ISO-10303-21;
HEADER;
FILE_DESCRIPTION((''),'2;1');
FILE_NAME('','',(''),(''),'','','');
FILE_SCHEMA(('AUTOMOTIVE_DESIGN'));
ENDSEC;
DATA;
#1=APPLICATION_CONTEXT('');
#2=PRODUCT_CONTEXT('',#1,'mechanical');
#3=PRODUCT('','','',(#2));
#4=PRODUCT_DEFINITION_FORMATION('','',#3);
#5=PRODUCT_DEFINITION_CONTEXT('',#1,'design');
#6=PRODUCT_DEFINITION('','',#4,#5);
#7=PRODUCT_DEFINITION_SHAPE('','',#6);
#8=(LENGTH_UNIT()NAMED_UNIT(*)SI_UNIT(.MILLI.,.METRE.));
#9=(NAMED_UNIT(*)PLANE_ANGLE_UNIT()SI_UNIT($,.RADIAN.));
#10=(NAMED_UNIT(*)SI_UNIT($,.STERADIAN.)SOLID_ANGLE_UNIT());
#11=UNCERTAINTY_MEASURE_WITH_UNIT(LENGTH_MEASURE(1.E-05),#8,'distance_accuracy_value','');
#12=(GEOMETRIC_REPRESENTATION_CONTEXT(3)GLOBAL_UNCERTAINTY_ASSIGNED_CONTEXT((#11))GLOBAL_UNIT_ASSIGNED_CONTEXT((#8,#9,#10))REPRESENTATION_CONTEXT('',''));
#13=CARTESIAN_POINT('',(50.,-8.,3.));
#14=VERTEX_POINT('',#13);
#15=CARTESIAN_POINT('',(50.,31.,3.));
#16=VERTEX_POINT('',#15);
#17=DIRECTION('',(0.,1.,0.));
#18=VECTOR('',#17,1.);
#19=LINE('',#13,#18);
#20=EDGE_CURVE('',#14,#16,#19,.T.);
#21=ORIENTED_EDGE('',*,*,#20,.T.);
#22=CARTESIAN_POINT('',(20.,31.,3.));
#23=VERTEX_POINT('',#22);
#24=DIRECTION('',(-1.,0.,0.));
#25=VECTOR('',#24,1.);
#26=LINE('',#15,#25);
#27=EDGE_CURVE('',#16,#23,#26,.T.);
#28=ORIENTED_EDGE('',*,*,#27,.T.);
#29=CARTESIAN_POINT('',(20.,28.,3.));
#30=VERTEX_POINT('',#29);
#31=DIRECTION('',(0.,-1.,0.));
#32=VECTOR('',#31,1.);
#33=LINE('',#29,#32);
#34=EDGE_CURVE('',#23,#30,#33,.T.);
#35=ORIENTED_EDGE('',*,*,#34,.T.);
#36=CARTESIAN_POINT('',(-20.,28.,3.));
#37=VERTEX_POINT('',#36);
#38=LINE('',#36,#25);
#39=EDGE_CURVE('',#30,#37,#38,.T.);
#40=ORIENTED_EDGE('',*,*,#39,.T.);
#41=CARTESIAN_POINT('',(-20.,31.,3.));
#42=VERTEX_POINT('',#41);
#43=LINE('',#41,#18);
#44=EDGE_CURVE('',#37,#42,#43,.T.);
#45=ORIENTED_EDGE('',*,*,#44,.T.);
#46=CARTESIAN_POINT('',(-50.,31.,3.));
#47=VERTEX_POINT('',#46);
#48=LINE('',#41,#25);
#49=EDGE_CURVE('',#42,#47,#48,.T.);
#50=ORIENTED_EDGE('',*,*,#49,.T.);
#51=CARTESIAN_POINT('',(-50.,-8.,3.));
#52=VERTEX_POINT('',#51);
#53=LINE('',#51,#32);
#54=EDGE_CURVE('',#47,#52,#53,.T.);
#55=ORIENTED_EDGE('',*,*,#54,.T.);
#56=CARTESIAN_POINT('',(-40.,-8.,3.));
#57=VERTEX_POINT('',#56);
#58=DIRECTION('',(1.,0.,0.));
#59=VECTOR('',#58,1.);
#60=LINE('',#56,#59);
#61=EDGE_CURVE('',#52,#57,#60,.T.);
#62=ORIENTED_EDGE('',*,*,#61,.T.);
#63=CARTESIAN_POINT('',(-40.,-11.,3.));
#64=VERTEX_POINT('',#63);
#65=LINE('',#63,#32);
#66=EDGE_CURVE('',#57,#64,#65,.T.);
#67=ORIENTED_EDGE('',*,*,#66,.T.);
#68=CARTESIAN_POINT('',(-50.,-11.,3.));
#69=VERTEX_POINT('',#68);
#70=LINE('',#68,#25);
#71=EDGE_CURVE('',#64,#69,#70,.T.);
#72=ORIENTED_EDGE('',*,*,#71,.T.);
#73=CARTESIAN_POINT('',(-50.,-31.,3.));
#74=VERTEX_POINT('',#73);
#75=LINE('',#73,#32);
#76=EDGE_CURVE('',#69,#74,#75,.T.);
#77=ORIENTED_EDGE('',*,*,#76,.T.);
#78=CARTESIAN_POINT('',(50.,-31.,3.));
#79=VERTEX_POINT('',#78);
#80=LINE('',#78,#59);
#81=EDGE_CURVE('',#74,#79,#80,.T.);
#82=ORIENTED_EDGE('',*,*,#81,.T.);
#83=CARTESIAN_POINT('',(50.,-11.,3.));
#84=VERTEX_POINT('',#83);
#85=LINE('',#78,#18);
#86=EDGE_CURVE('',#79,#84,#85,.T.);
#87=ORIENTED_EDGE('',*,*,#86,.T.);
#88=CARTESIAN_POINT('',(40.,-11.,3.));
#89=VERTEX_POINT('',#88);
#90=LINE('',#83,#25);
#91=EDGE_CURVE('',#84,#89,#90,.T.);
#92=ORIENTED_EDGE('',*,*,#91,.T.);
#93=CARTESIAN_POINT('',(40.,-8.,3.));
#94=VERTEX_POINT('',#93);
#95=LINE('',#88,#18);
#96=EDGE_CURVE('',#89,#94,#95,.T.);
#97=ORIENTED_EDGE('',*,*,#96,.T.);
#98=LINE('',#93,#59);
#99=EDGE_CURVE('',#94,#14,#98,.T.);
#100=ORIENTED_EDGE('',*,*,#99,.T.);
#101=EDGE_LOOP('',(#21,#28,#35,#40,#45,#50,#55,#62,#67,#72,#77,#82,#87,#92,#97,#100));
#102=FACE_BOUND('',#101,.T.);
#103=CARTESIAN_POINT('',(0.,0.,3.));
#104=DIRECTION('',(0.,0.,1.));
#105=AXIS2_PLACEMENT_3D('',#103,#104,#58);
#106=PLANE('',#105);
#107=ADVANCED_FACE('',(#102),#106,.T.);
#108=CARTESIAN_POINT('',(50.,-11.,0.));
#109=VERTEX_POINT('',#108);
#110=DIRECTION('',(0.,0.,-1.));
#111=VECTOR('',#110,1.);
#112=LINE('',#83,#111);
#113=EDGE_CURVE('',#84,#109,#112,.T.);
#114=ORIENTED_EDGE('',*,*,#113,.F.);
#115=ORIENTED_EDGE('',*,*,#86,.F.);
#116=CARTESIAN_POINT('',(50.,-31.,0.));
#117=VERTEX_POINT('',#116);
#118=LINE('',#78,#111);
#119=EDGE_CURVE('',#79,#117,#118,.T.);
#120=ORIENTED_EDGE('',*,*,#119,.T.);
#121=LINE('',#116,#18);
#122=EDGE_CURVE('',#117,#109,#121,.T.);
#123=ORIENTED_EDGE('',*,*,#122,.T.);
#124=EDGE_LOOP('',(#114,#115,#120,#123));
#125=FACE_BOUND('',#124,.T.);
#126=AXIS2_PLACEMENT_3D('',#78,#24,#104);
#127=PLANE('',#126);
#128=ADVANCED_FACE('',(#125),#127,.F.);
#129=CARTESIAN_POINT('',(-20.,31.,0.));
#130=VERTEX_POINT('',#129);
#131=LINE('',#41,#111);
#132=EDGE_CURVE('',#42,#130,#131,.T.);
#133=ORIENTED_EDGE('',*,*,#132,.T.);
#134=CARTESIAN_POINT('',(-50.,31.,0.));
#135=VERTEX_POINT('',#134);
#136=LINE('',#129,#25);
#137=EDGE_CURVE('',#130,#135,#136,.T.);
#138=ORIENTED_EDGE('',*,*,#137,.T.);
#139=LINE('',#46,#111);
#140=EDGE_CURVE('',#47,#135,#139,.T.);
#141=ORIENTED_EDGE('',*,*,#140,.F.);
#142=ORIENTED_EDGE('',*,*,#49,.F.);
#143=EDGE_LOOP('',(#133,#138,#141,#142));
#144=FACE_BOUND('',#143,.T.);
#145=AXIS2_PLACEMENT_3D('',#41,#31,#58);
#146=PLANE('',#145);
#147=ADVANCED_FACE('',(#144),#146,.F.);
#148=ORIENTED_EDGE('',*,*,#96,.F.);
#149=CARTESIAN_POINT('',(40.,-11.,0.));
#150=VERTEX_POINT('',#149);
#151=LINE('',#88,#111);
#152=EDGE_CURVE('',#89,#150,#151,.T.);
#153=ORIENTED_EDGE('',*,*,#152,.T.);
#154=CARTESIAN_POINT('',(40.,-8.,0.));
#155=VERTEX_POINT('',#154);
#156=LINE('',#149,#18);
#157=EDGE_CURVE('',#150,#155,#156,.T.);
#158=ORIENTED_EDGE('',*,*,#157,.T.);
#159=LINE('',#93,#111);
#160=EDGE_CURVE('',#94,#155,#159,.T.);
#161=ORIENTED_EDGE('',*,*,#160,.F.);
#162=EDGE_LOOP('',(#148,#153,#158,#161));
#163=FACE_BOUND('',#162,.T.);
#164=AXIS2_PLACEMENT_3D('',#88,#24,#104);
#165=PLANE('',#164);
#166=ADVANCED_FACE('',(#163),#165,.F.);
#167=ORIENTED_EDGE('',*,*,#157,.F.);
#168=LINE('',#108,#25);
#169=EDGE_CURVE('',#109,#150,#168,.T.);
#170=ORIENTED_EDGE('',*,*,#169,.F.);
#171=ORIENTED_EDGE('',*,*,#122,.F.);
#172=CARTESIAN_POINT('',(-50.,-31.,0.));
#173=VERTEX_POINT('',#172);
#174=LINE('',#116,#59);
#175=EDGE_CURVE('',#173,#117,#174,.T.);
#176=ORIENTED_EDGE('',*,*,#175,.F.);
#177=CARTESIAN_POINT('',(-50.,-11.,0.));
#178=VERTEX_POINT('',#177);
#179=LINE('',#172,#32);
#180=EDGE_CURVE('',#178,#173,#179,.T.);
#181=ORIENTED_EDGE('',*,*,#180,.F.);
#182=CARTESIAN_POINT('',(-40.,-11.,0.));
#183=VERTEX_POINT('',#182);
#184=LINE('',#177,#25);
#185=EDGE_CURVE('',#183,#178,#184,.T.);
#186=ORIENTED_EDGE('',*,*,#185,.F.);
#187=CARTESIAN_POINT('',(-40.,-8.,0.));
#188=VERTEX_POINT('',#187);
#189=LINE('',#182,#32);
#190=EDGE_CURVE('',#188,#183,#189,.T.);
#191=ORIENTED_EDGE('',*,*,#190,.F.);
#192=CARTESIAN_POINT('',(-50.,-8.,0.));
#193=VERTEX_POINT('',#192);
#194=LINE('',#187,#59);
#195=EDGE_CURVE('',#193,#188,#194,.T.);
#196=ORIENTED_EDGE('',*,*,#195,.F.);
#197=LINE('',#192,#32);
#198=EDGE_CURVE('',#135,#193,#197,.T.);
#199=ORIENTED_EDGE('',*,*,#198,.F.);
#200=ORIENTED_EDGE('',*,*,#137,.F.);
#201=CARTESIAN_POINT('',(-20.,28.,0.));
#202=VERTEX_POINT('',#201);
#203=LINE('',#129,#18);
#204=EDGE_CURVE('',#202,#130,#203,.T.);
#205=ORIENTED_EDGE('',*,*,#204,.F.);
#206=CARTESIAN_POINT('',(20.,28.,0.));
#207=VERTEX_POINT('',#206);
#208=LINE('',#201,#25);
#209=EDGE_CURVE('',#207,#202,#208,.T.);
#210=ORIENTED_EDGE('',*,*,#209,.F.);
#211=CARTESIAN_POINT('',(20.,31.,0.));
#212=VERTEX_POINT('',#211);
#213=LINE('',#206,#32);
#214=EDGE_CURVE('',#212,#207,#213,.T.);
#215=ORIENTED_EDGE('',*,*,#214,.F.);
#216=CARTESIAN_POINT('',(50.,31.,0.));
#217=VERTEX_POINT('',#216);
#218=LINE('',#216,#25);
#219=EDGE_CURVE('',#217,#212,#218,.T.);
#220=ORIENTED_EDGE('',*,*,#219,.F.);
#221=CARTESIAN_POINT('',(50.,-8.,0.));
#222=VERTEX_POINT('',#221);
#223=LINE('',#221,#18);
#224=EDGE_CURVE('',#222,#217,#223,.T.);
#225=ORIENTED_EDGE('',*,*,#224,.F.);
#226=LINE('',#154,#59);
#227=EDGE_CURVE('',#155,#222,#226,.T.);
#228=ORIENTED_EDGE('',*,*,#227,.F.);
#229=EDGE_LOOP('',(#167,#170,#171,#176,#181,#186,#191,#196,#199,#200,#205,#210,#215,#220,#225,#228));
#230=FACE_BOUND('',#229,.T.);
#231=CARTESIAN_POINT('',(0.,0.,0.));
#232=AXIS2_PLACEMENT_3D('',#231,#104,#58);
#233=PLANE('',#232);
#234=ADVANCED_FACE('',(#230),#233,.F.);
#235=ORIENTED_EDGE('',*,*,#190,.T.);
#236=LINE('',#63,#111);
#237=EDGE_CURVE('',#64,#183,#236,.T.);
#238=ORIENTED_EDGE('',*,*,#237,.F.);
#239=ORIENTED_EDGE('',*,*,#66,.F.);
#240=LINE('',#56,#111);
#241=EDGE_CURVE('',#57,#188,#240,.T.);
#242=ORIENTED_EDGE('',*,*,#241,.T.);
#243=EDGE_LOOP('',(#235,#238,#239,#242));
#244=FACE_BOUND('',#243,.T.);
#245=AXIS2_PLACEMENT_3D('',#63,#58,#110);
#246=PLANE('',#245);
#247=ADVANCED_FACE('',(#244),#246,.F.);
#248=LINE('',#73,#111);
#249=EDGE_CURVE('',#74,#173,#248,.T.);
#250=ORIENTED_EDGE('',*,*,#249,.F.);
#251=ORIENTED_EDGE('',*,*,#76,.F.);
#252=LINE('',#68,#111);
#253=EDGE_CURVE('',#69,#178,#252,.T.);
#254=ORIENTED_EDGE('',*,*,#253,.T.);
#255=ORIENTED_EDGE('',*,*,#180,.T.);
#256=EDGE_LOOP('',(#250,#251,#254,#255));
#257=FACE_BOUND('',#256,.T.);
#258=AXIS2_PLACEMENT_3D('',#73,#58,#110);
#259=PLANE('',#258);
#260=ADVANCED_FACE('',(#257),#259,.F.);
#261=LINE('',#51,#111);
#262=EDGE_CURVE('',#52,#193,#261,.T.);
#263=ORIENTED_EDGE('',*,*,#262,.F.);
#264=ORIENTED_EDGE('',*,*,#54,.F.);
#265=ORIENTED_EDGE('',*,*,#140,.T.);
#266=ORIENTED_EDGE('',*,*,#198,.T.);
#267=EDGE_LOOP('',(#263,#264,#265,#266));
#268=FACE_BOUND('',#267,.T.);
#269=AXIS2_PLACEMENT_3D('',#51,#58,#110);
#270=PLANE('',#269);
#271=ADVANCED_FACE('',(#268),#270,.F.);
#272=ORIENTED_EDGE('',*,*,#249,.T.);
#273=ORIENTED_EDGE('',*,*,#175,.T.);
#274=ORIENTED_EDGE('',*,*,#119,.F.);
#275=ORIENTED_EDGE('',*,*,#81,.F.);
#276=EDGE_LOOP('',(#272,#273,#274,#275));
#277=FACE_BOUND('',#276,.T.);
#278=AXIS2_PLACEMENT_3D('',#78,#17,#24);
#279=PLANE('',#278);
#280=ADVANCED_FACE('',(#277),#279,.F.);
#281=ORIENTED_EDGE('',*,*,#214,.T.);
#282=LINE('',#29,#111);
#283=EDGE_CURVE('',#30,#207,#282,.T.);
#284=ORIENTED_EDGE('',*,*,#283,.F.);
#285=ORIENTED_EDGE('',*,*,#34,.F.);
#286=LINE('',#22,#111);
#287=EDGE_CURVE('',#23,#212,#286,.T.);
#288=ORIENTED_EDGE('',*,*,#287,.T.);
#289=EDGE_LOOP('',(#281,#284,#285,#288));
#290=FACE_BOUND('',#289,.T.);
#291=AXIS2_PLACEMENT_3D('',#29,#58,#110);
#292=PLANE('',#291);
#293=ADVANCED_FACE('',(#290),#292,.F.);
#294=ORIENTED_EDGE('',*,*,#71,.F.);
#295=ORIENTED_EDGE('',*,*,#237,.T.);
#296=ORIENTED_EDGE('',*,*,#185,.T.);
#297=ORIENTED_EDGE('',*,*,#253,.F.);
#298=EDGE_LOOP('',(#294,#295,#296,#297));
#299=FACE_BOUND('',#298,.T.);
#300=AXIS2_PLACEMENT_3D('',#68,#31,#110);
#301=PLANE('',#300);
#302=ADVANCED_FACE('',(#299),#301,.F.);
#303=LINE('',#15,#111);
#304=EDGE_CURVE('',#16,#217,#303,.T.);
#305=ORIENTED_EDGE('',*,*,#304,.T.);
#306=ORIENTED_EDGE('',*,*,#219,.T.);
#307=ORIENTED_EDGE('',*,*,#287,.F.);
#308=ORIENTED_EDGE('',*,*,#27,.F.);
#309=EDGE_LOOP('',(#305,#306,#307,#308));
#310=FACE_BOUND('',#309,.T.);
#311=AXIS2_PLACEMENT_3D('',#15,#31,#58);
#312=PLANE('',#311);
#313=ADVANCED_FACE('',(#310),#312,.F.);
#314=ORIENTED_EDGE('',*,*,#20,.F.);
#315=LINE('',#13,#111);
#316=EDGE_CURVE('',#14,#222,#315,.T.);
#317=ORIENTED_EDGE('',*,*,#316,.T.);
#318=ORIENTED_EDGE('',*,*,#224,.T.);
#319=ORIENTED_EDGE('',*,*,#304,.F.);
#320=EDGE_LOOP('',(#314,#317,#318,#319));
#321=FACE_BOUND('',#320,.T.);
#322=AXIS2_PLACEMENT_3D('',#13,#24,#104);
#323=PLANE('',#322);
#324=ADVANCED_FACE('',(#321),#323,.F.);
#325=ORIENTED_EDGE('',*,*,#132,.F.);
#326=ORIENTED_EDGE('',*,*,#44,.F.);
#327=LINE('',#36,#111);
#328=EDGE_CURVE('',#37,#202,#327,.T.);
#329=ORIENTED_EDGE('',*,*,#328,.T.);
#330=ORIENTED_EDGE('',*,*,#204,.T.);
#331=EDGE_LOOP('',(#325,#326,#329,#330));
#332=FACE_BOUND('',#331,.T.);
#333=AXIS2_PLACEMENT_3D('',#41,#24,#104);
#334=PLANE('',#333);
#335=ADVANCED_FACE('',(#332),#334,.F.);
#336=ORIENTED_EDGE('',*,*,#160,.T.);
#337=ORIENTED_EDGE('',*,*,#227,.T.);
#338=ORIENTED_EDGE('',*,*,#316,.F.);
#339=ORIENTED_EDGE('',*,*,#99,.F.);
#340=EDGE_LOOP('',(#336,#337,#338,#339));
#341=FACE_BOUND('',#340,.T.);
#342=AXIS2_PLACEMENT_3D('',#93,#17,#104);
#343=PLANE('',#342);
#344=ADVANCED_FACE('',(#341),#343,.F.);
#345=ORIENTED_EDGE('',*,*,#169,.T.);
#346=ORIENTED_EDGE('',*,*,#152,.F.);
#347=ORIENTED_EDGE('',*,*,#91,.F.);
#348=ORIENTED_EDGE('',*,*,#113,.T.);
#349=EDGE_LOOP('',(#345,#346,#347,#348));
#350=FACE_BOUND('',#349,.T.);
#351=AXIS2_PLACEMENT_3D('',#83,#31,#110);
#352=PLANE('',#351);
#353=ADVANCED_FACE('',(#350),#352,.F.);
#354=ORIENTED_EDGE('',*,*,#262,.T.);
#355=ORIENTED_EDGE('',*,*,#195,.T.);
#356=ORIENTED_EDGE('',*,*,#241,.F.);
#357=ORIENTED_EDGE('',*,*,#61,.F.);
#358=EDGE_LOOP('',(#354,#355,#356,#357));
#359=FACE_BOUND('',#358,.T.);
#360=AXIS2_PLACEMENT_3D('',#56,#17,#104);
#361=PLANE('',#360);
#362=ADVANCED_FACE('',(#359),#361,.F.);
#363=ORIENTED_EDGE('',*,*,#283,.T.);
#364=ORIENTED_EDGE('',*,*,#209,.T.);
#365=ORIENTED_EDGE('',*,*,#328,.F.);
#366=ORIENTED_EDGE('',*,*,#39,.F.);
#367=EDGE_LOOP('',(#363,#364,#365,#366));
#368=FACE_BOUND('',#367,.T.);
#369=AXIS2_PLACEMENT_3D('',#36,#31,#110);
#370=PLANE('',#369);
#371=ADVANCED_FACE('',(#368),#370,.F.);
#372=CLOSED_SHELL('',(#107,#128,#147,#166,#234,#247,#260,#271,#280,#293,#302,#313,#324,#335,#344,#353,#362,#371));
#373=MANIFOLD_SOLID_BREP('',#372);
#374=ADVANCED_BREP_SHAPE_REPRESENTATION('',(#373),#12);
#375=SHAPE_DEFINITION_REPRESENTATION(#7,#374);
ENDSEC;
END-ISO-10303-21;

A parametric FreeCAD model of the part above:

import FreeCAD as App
import Part
import Sketcher
Q = App.Units.Quantity


def add_polygon(sketch, points):
    """Adds a closed chain of lines whose ends are joined by coincident constraints."""
    first, n = sketch.GeometryCount, len(points)
    for a, b in zip(points, points[1:] + points[:1]):
        sketch.addGeometry(Part.LineSegment(App.Vector(*a, 0), App.Vector(*b, 0)), False)
    for i in range(n):
        sketch.addConstraint(Sketcher.Constraint("Coincident", first + i, 2, first + (i + 1) % n, 1))

doc = App.newDocument("Part")
body = doc.addObject("PartDesign::Body", "Body")

sketch1 = body.newObject("Sketcher::SketchObject", "Sketch")
sketch1.AttachmentSupport = (doc.getObject("XY_Plane"), [""])
sketch1.MapMode = "FlatFace"
add_polygon(sketch1, [(-20, 28), (-20, 31), (-50, 31), (-50, -8), (-40, -8), (-40, -11), (-50, -11), (-50, -31), (50, -31), (50, -11), (40, -11), (40, -8), (50, -8), (50, 31), (20, 31), (20, 28)])
sketch1.addConstraint(Sketcher.Constraint("Vertical", 0))
sketch1.addConstraint(Sketcher.Constraint("Horizontal", 1))
sketch1.addConstraint(Sketcher.Constraint("Vertical", 2))
sketch1.addConstraint(Sketcher.Constraint("Horizontal", 3))
sketch1.addConstraint(Sketcher.Constraint("Vertical", 4))
sketch1.addConstraint(Sketcher.Constraint("Horizontal", 5))
sketch1.addConstraint(Sketcher.Constraint("Vertical", 6))
sketch1.addConstraint(Sketcher.Constraint("Horizontal", 7))
sketch1.addConstraint(Sketcher.Constraint("Vertical", 8))
sketch1.addConstraint(Sketcher.Constraint("Horizontal", 9))
sketch1.addConstraint(Sketcher.Constraint("Vertical", 10))
sketch1.addConstraint(Sketcher.Constraint("Horizontal", 11))
sketch1.addConstraint(Sketcher.Constraint("Vertical", 12))
sketch1.addConstraint(Sketcher.Constraint("Horizontal", 13))
sketch1.addConstraint(Sketcher.Constraint("Vertical", 14))
sketch1.addConstraint(Sketcher.Constraint("Horizontal", 15))
sketch1.addConstraint(Sketcher.Constraint("Symmetric", 1, 2, 7, 2, -1, 1))
sketch1.addConstraint(Sketcher.Constraint("Symmetric", 6, 2, 12, 2, -1, 1))
sketch1.addConstraint(Sketcher.Constraint("Symmetric", 5, 2, 8, 2, -2))
sketch1.addConstraint(Sketcher.Constraint("Symmetric", 3, 2, 10, 2, -2))
sketch1.addConstraint(Sketcher.Constraint("Equal", 1, 13))
sketch1.addConstraint(Sketcher.Constraint("Equal", 0, 4))
sketch1.addConstraint(Sketcher.Constraint("DistanceX", 1, 2, 1, 1, Q("30 mm")))
sketch1.addConstraint(Sketcher.Constraint("DistanceX", 3, 1, 3, 2, Q("10 mm")))
sketch1.addConstraint(Sketcher.Constraint("DistanceX", 7, 1, 7, 2, Q("100 mm")))
sketch1.addConstraint(Sketcher.Constraint("DistanceY", 0, 1, 0, 2, Q("3 mm")))
sketch1.addConstraint(Sketcher.Constraint("DistanceY", 2, 2, 2, 1, Q("39 mm")))
sketch1.addConstraint(Sketcher.Constraint("DistanceY", 6, 2, 6, 1, Q("20 mm")))
pad1 = body.newObject("PartDesign::Pad", "Pad")
pad1.Profile = sketch1
pad1.Length = 3

doc.recompute()
